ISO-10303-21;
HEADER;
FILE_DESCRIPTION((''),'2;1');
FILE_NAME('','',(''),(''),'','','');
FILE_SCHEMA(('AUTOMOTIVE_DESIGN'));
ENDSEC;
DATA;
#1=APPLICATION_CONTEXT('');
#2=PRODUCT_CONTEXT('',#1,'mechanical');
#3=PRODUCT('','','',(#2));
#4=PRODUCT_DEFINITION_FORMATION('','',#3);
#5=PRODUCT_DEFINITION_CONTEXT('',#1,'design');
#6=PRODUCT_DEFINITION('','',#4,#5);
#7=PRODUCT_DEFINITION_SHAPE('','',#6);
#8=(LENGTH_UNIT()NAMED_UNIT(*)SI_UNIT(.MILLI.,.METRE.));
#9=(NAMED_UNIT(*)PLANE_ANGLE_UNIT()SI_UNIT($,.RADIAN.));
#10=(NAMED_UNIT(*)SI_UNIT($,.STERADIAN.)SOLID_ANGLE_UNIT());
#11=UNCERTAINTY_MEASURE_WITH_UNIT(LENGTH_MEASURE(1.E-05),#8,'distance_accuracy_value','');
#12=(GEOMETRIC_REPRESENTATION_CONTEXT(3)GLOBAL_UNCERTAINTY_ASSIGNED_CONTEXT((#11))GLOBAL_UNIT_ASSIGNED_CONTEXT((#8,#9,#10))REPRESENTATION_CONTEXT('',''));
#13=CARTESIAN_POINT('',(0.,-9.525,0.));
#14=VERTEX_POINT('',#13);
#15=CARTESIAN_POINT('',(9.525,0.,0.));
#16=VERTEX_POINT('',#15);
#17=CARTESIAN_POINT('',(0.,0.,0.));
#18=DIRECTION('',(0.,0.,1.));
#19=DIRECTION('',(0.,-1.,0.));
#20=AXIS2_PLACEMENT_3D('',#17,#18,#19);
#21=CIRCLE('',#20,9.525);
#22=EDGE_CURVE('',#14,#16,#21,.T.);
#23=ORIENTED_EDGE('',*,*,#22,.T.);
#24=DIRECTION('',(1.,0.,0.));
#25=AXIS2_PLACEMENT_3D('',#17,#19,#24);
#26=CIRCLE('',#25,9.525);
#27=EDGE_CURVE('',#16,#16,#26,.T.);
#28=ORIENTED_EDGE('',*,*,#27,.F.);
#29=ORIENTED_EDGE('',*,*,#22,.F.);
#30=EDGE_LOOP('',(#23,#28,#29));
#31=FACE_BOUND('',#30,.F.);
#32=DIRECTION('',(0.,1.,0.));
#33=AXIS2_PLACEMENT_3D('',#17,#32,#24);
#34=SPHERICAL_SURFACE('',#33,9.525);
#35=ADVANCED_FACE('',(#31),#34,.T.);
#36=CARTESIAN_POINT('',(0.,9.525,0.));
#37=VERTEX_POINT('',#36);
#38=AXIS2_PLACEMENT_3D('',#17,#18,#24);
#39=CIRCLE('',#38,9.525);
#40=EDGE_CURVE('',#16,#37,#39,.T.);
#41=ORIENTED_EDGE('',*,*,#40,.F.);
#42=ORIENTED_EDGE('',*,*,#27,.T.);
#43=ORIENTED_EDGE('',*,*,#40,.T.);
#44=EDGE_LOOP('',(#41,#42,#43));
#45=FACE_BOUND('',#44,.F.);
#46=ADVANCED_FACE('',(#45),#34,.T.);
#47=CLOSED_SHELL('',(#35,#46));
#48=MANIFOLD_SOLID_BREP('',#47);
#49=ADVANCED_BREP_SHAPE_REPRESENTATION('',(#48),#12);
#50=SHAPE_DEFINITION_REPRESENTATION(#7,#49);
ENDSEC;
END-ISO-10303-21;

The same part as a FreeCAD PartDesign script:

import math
import FreeCAD as App
import Part
import Sketcher
Q = App.Units.Quantity

doc = App.newDocument("Part")
body = doc.addObject("PartDesign::Body", "Body")

sketch1 = body.newObject("Sketcher::SketchObject", "Sketch")
sketch1.AttachmentSupport = (doc.getObject("XY_Plane"), [""])
sketch1.MapMode = "FlatFace"
sketch1.addGeometry(Part.ArcOfCircle(Part.Circle(App.Vector(0, 0, 0), App.Vector(0, 0, 1), 10), math.radians(-90), math.radians(0)), False)
sketch1.addGeometry(Part.ArcOfCircle(Part.Circle(App.Vector(0, 0, 0), App.Vector(0, 0, 1), 10), math.radians(0), math.radians(90)), False)
sketch1.addGeometry(Part.LineSegment(App.Vector(0, 10, 0), App.Vector(0, -10, 0)), False)
sketch1.addConstraint(Sketcher.Constraint("Tangent", 0, 2, 1, 1))
sketch1.addConstraint(Sketcher.Constraint("Coincident", 1, 2, 2, 1))
sketch1.addConstraint(Sketcher.Constraint("Coincident", 2, 2, 0, 1))
sketch1.addConstraint(Sketcher.Constraint("Vertical", 2))
sketch1.addConstraint(Sketcher.Constraint("Coincident", 0, 3, -1, 1))
sketch1.addConstraint(Sketcher.Constraint("Equal", 0, 1))
sketch1.addConstraint(Sketcher.Constraint("PointOnObject", 0, 2, -1))
sketch1.addConstraint(Sketcher.Constraint("PointOnObject", 1, 2, -2))
sketch1.addConstraint(Sketcher.Constraint("Radius", 0, Q("0.375 in")))
revolution = body.newObject("PartDesign::Revolution", "Revolution")
revolution.Profile = sketch1
revolution.ReferenceAxis = (sketch1, ["V_Axis"])
revolution.Angle = 360

doc.recompute()
